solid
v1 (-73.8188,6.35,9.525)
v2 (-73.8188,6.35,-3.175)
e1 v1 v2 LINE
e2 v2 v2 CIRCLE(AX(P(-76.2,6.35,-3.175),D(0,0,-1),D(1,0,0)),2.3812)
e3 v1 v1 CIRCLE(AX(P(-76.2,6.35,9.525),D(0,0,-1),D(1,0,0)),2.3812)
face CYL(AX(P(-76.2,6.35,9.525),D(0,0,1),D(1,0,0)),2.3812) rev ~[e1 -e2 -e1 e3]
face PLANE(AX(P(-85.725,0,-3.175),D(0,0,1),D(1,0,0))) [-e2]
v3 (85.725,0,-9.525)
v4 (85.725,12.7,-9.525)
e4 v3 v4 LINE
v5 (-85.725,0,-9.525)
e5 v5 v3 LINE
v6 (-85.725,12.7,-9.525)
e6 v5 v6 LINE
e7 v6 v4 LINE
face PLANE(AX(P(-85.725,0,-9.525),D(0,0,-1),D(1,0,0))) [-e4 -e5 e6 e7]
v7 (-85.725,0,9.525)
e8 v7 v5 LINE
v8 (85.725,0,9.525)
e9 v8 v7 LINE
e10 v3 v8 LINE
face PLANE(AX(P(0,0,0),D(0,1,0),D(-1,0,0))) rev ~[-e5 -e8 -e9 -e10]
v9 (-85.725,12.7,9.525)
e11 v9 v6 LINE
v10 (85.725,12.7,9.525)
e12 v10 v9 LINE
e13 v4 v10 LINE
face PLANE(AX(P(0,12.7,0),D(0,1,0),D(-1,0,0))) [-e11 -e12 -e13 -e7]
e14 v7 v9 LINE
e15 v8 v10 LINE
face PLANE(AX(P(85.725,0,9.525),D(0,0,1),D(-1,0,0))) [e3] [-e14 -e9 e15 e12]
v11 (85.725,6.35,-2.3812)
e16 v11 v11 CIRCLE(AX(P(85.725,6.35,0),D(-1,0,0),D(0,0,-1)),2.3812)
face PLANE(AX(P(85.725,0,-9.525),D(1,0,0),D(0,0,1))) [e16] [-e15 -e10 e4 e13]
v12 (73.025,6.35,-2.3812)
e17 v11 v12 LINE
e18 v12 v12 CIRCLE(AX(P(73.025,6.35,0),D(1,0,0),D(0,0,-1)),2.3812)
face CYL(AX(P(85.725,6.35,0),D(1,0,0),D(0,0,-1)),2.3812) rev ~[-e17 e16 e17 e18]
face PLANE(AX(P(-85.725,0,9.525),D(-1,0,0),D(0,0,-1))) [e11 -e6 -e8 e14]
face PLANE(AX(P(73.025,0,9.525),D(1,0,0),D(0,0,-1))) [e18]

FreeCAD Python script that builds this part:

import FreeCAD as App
import Part
import Sketcher

V = App.Vector
Q = App.Units.Quantity


def add_polygon(sketch, points):
    """Adds a closed chain of lines whose ends are joined by coincident constraints."""
    first, n = sketch.GeometryCount, len(points)
    for a, b in zip(points, points[1:] + points[:1]):
        sketch.addGeometry(Part.LineSegment(App.Vector(*a, 0), App.Vector(*b, 0)), False)
    for i in range(n):
        sketch.addConstraint(Sketcher.Constraint("Coincident", first + i, 2, first + (i + 1) % n, 1))

doc = App.newDocument("Part")
body = doc.addObject("PartDesign::Body", "Body")

sketch1 = body.newObject("Sketcher::SketchObject", "Sketch")
sketch1.AttachmentSupport = (doc.getObject("XZ_Plane"), [""])
sketch1.MapMode = "FlatFace"
add_polygon(sketch1, [(-85.725, 9.525), (85.725, 9.525), (85.725, -9.525), (-85.725, -9.525)])
sketch1.addConstraint([
    Sketcher.Constraint("Horizontal", 0),
    Sketcher.Constraint("Vertical", 1),
    Sketcher.Constraint("Horizontal", 2),
    Sketcher.Constraint("Vertical", 3),
    Sketcher.Constraint("Symmetric", 0, 2, 2, 2, -1, 1),
    Sketcher.Constraint("DistanceX", 0, 1, 0, 2, Q("6.75 in")),
    Sketcher.Constraint("DistanceY", 1, 2, 1, 1, Q("0.75 in")),
])
pad1 = body.newObject("PartDesign::Pad", "Pad")
pad1.Profile = sketch1
pad1.Length = Q("0.5 in")
pad1.Reversed = True

sketch2 = body.newObject("Sketcher::SketchObject", "Sketch001")
sketch2.AttachmentSupport = (doc.getObject("YZ_Plane"), [""])
sketch2.MapMode = "FlatFace"
sketch2.AttachmentOffset = App.Placement(V(0, 0, 3.375 * 25.4), App.Rotation())
sketch2.addGeometry(Part.Circle(V(6.35, 0, 0), V(0, 0, 1), 2.3812), False)
sketch2.addConstraint([
    Sketcher.Constraint("PointOnObject", 0, 3, -1),
    Sketcher.Constraint("Diameter", 0, Q("0.1875 in")),
    Sketcher.Constraint("DistanceX", -1, 1, 0, 3, Q("0.25 in")),
])
pocket1 = body.newObject("PartDesign::Pocket", "Pocket")
pocket1.Profile = sketch2
pocket1.Length = Q("0.5 in")

sketch3 = body.newObject("Sketcher::SketchObject", "Sketch002")
sketch3.AttachmentSupport = (doc.getObject("XY_Plane"), [""])
sketch3.MapMode = "FlatFace"
sketch3.AttachmentOffset = App.Placement(V(0, 0, 0.375 * 25.4), App.Rotation())
sketch3.addGeometry(Part.Circle(V(-76.2, 6.35, 0), V(0, 0, 1), 2.3812), False)
sketch3.addConstraint([
    Sketcher.Constraint("Diameter", 0, Q("0.1875 in")),
    Sketcher.Constraint("DistanceX", 0, 3, -1, 1, Q("3 in")),
    Sketcher.Constraint("DistanceY", -1, 1, 0, 3, Q("0.25 in")),
])
pocket2 = body.newObject("PartDesign::Pocket", "Pocket001")
pocket2.Profile = sketch3
pocket2.Length = Q("0.5 in")

doc.recompute()
